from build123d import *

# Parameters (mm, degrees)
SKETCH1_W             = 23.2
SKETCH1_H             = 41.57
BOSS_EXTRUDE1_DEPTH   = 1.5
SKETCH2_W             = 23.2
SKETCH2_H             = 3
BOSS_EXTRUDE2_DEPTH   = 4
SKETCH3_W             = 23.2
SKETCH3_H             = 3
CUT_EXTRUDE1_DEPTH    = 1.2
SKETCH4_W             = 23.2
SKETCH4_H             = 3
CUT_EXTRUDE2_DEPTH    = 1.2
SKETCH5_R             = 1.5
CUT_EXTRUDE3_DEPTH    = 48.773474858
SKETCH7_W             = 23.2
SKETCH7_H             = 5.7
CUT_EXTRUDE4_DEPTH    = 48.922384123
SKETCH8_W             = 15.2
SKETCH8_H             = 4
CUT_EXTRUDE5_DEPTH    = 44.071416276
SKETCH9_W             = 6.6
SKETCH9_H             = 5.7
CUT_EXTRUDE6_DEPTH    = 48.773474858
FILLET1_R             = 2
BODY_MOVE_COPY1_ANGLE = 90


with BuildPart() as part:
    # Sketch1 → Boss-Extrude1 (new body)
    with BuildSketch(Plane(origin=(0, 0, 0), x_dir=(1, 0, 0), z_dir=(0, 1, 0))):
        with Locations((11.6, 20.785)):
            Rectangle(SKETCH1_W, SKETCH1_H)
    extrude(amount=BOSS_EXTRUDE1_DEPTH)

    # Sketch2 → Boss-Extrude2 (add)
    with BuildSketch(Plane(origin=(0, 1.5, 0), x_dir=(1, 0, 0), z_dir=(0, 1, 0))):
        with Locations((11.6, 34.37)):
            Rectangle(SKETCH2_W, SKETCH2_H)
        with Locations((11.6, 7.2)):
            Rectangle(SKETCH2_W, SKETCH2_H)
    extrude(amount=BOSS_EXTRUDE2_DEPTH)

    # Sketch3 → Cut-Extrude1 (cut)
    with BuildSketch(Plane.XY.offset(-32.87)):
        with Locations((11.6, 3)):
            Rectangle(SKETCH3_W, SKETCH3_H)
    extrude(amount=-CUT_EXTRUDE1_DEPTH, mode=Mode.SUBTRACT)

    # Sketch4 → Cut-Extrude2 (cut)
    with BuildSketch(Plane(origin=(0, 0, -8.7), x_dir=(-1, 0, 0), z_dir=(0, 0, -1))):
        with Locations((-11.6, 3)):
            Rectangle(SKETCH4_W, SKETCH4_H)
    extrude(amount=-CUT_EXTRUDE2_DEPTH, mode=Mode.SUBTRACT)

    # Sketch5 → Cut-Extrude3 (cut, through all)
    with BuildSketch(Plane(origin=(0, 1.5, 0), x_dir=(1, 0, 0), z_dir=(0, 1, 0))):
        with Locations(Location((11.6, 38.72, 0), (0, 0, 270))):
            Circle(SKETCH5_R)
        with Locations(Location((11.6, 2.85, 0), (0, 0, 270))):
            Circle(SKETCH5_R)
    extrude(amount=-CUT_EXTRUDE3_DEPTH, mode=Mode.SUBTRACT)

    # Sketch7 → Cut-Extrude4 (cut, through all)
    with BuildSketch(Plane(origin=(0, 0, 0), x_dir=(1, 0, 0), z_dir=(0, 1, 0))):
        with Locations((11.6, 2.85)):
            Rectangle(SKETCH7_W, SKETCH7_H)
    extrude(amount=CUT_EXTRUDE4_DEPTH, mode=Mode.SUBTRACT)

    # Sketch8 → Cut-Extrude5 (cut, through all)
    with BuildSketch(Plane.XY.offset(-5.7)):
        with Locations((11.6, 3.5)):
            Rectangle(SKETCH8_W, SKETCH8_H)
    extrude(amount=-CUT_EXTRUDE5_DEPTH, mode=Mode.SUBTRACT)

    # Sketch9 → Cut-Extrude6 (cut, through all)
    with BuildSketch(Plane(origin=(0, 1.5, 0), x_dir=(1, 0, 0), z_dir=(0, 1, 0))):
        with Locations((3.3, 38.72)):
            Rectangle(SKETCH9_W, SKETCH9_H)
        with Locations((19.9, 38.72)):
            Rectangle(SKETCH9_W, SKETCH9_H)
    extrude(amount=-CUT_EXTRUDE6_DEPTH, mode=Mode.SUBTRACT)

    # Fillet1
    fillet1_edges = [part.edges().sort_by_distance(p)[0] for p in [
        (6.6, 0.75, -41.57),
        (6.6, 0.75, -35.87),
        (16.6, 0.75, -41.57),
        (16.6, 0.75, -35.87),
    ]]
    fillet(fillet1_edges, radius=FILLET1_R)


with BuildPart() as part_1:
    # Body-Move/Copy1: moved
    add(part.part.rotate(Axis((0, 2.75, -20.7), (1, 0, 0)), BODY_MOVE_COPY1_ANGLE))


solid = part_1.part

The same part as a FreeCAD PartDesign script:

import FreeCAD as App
import Part
import Sketcher
from FreeCAD import Vector
Q = App.Units.Quantity


def edges_at(feature, points):
    """Names of the edges that pass closest to the given points."""
    edges = feature.Shape.Edges
    near = lambda p: min(range(len(edges)), key=lambda i: edges[i].distToShape(Part.Vertex(*p))[0])
    return sorted({f"Edge{near(p) + 1}" for p in points})


def add_polygon(sketch, points):
    """Adds a closed chain of lines whose ends are joined by coincident constraints."""
    first, n = sketch.GeometryCount, len(points)
    for a, b in zip(points, points[1:] + points[:1]):
        sketch.addGeometry(Part.LineSegment(App.Vector(*a, 0), App.Vector(*b, 0)), False)
    for i in range(n):
        sketch.addConstraint(Sketcher.Constraint("Coincident", first + i, 2, first + (i + 1) % n, 1))

doc = App.newDocument("Part")
body = doc.addObject("PartDesign::Body", "Body")

sketch1 = body.newObject("Sketcher::SketchObject", "Sketch")
sketch1.AttachmentSupport = (doc.getObject("XZ_Plane"), [""])
sketch1.MapMode = "FlatFace"
add_polygon(sketch1, [(0, -42), (0, 0), (23, 0), (23, -42)])
sketch1.addConstraint([
    Sketcher.Constraint("Vertical", 0),
    Sketcher.Constraint("Horizontal", 1),
    Sketcher.Constraint("Vertical", 2),
    Sketcher.Constraint("Horizontal", 3),
    Sketcher.Constraint("Coincident", 0, 2, -1, 1),
    Sketcher.Constraint("DistanceX", 1, 1, 1, 2, Q("23.2 mm")),
    Sketcher.Constraint("DistanceY", 0, 1, 0, 2, Q("41.57 mm")),
])
pad1 = body.newObject("PartDesign::Pad", "Pad")
pad1.Profile = sketch1
pad1.Length = 1.5
pad1.Reversed = True

sketch2 = body.newObject("Sketcher::SketchObject", "Sketch001")
sketch2.AttachmentSupport = (doc.getObject("XZ_Plane"), [""])
sketch2.MapMode = "FlatFace"
sketch2.AttachmentOffset = App.Placement(Vector(0, 0, -1.5), App.Rotation())
add_polygon(sketch2, [(0, -35.9), (0, -32.9), (23.2, -32.9), (23.2, -35.9)])
add_polygon(sketch2, [(0, -8.7), (0, -5.7), (23.2, -5.7), (23.2, -8.7)])
sketch2.addConstraint([
    Sketcher.Constraint("Vertical", 0),
    Sketcher.Constraint("Horizontal", 1),
    Sketcher.Constraint("Vertical", 2),
    Sketcher.Constraint("Horizontal", 3),
    Sketcher.Constraint("Vertical", 4),
    Sketcher.Constraint("Horizontal", 5),
    Sketcher.Constraint("Vertical", 6),
    Sketcher.Constraint("Horizontal", 7),
    Sketcher.Constraint("PointOnObject", 0, 2, -2),
    Sketcher.Constraint("PointOnObject", 4, 2, -2),
    Sketcher.Constraint("Vertical", 2, 2, 5, 2),
    Sketcher.Constraint("Equal", 2, 4),
    Sketcher.Constraint("DistanceY", 0, 1, 0, 2, Q("3 mm")),
    Sketcher.Constraint("DistanceX", 1, 1, 1, 2, Q("23.2 mm")),
    Sketcher.Constraint("DistanceY", 4, 2, -1, 1, Q("5.7 mm")),
    Sketcher.Constraint("DistanceY", 0, 2, -1, 1, Q("32.87 mm")),
])
pad2 = body.newObject("PartDesign::Pad", "Pad001")
pad2.Profile = sketch2
pad2.Length = 4
pad2.Reversed = True

sketch3 = body.newObject("Sketcher::SketchObject", "Sketch002")
sketch3.AttachmentSupport = (doc.getObject("XY_Plane"), [""])
sketch3.MapMode = "FlatFace"
sketch3.AttachmentOffset = App.Placement(Vector(0, 0, -32.87), App.Rotation())
add_polygon(sketch3, [(0, 4.5), (0, 1.5), (23.2, 1.5), (23.2, 4.5)])
sketch3.addConstraint([
    Sketcher.Constraint("Vertical", 0),
    Sketcher.Constraint("Horizontal", 1),
    Sketcher.Constraint("Vertical", 2),
    Sketcher.Constraint("Horizontal", 3),
    Sketcher.Constraint("PointOnObject", 0, 2, -2),
    Sketcher.Constraint("DistanceY", 0, 2, 0, 1, Q("3 mm")),
    Sketcher.Constraint("DistanceX", 1, 1, 1, 2, Q("23.2 mm")),
    Sketcher.Constraint("DistanceY", -1, 1, 0, 2, Q("1.5 mm")),
])
pocket1 = body.newObject("PartDesign::Pocket", "Pocket")
pocket1.Profile = sketch3
pocket1.Length = 1.2

sketch4 = body.newObject("Sketcher::SketchObject", "Sketch003")
sketch4.AttachmentSupport = (doc.getObject("XY_Plane"), [""])
sketch4.MapMode = "FlatFace"
sketch4.AttachmentOffset = App.Placement(Vector(0, 0, -8.7), App.Rotation())
add_polygon(sketch4, [(23.2, 4.5), (23.2, 1.5), (0, 1.5), (0, 4.5)])
sketch4.addConstraint([
    Sketcher.Constraint("Vertical", 0),
    Sketcher.Constraint("Horizontal", 1),
    Sketcher.Constraint("Vertical", 2),
    Sketcher.Constraint("Horizontal", 3),
    Sketcher.Constraint("PointOnObject", 1, 2, -2),
    Sketcher.Constraint("DistanceY", 0, 2, 0, 1, Q("3 mm")),
    Sketcher.Constraint("DistanceX", 1, 2, 1, 1, Q("23.2 mm")),
    Sketcher.Constraint("DistanceY", -1, 1, 0, 2, Q("1.5 mm")),
])
pocket2 = body.newObject("PartDesign::Pocket", "Pocket001")
pocket2.Profile = sketch4
pocket2.Length = 1.2
pocket2.Reversed = True

sketch5 = body.newObject("Sketcher::SketchObject", "Sketch004")
sketch5.AttachmentSupport = (doc.getObject("XZ_Plane"), [""])
sketch5.MapMode = "FlatFace"
sketch5.AttachmentOffset = App.Placement(Vector(0, 0, -1.5), App.Rotation())
sketch5.addGeometry([
    Part.Circle(Vector(11.6, -38.7, 0), Vector(0, 0, 1), 1.5),
    Part.Circle(Vector(11.6, -2.9, 0), Vector(0, 0, 1), 1.5),
], False)
sketch5.addConstraint([
    Sketcher.Constraint("Equal", 0, 1),
    Sketcher.Constraint("Vertical", 0, 3, 1, 3),
    Sketcher.Constraint("Diameter", 0, Q("3 mm")),
    Sketcher.Constraint("DistanceX", -1, 1, 0, 3, Q("11.6 mm")),
    Sketcher.Constraint("DistanceY", 0, 3, -1, 1, Q("38.72 mm")),
    Sketcher.Constraint("DistanceY", 1, 3, -1, 1, Q("2.85 mm")),
])
pocket3 = body.newObject("PartDesign::Pocket", "Pocket002")
pocket3.Profile = sketch5
pocket3.Type = "ThroughAll"
pocket3.Reversed = True

sketch6 = body.newObject("Sketcher::SketchObject", "Sketch005")
sketch6.AttachmentSupport = (doc.getObject("XZ_Plane"), [""])
sketch6.MapMode = "FlatFace"
add_polygon(sketch6, [(0, -6), (0, 0), (23, 0), (23, -6)])
sketch6.addConstraint([
    Sketcher.Constraint("Vertical", 0),
    Sketcher.Constraint("Horizontal", 1),
    Sketcher.Constraint("Vertical", 2),
    Sketcher.Constraint("Horizontal", 3),
    Sketcher.Constraint("Coincident", 0, 2, -1, 1),
    Sketcher.Constraint("DistanceX", 1, 1, 1, 2, Q("23.2 mm")),
    Sketcher.Constraint("DistanceY", 0, 1, 0, 2, Q("5.7 mm")),
])
pocket4 = body.newObject("PartDesign::Pocket", "Pocket003")
pocket4.Profile = sketch6
pocket4.Type = "ThroughAll"

sketch7 = body.newObject("Sketcher::SketchObject", "Sketch006")
sketch7.AttachmentSupport = (doc.getObject("XY_Plane"), [""])
sketch7.MapMode = "FlatFace"
sketch7.AttachmentOffset = App.Placement(Vector(0, 0, -5.7), App.Rotation())
add_polygon(sketch7, [(4, 5.5), (4, 1.5), (19.2, 1.5), (19.2, 5.5)])
sketch7.addConstraint([
    Sketcher.Constraint("Vertical", 0),
    Sketcher.Constraint("Horizontal", 1),
    Sketcher.Constraint("Vertical", 2),
    Sketcher.Constraint("Horizontal", 3),
    Sketcher.Constraint("DistanceY", 0, 2, 0, 1, Q("4 mm")),
    Sketcher.Constraint("DistanceX", 1, 1, 1, 2, Q("15.2 mm")),
    Sketcher.Constraint("DistanceX", -1, 1, 0, 2, Q("4 mm")),
    Sketcher.Constraint("DistanceY", -1, 1, 0, 2, Q("1.5 mm")),
])
pocket5 = body.newObject("PartDesign::Pocket", "Pocket004")
pocket5.Profile = sketch7
pocket5.Type = "ThroughAll"

sketch8 = body.newObject("Sketcher::SketchObject", "Sketch007")
sketch8.AttachmentSupport = (doc.getObject("XZ_Plane"), [""])
sketch8.MapMode = "FlatFace"
sketch8.AttachmentOffset = App.Placement(Vector(0, 0, -1.5), App.Rotation())
add_polygon(sketch8, [(0, -42), (0, -36), (7, -36), (7, -42)])
add_polygon(sketch8, [(17, -42), (17, -36), (23, -36), (23, -42)])
sketch8.addConstraint([
    Sketcher.Constraint("Vertical", 0),
    Sketcher.Constraint("Horizontal", 1),
    Sketcher.Constraint("Vertical", 2),
    Sketcher.Constraint("Horizontal", 3),
    Sketcher.Constraint("Vertical", 4),
    Sketcher.Constraint("Horizontal", 5),
    Sketcher.Constraint("Vertical", 6),
    Sketcher.Constraint("Horizontal", 7),
    Sketcher.Constraint("PointOnObject", 0, 2, -2),
    Sketcher.Constraint("Horizontal", 1, 2, 4, 2),
    Sketcher.Constraint("Horizontal", 3, 2, 6, 2),
    Sketcher.Constraint("Equal", 3, 5),
    Sketcher.Constraint("DistanceX", 1, 1, 1, 2, Q("6.6 mm")),
    Sketcher.Constraint("DistanceY", 0, 1, 0, 2, Q("5.7 mm")),
    Sketcher.Constraint("DistanceX", 1, 2, 4, 2, Q("10 mm")),
    Sketcher.Constraint("DistanceY", 0, 2, -1, 1, Q("35.87 mm")),
])
pocket6 = body.newObject("PartDesign::Pocket", "Pocket005")
pocket6.Profile = sketch8
pocket6.Type = "ThroughAll"
pocket6.Reversed = True
doc.recompute()

fillet = body.newObject("PartDesign::Fillet", "Fillet")
fillet.Base = (pocket6, edges_at(pocket6, [
    (6.6, 0.75, -41.57),
    (6.6, 0.75, -35.87),
    (16.6, 0.75, -41.57),
    (16.6, 0.75, -35.87),
]))
fillet.Radius = 2
body2 = doc.addObject("PartDesign::Body", "Body001")
doc.recompute()

body.Placement = App.Placement(Vector(0, -17.95, -23.45), App.Rotation(Vector(1, 0, 0), 90))
boolean = body2.newObject("PartDesign::Boolean", "Boolean")
boolean.Type = "Fuse"
boolean.addObjects([body])

doc.recompute()
